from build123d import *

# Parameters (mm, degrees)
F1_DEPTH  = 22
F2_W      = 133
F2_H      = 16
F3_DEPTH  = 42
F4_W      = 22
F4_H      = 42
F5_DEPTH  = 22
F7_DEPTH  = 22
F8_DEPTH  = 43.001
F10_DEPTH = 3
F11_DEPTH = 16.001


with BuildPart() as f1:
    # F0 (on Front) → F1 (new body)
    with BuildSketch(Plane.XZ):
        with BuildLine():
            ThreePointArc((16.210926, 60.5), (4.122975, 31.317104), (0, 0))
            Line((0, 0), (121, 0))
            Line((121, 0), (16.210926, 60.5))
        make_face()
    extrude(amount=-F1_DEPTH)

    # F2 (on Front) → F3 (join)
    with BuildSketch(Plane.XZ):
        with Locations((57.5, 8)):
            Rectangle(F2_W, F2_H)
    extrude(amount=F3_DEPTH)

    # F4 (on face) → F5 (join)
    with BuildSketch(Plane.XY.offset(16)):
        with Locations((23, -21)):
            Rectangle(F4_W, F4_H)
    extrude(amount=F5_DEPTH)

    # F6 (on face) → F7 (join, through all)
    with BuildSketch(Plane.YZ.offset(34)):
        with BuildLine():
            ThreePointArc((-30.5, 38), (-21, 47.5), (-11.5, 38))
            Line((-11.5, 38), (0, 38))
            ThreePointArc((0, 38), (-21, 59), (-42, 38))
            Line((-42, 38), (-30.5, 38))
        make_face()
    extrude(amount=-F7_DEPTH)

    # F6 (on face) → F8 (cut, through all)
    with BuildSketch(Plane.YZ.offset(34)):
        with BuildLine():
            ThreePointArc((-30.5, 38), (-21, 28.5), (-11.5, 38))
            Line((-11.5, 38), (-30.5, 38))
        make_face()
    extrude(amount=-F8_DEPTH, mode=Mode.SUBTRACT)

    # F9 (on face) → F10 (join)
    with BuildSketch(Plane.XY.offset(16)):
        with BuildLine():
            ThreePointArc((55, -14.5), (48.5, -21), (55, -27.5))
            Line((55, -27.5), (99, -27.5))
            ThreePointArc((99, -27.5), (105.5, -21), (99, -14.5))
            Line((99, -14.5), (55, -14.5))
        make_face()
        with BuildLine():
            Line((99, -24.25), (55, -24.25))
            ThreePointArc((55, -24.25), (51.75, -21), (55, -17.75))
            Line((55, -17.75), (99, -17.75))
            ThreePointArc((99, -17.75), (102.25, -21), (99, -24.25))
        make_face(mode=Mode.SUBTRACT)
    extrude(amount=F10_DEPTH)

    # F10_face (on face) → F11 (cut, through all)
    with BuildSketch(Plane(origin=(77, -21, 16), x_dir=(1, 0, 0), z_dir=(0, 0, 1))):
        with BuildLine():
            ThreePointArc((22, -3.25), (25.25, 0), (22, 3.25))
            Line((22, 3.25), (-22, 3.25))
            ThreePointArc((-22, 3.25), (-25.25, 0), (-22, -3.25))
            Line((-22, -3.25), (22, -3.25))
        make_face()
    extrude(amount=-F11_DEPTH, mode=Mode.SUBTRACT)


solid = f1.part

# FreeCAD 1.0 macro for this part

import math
import FreeCAD as App
import Part
import Sketcher

V = App.Vector
Q = App.Units.Quantity


def add_polygon(sketch, points):
    """Adds a closed chain of lines whose ends are joined by coincident constraints."""
    first, n = sketch.GeometryCount, len(points)
    for a, b in zip(points, points[1:] + points[:1]):
        sketch.addGeometry(Part.LineSegment(App.Vector(*a, 0), App.Vector(*b, 0)), False)
    for i in range(n):
        sketch.addConstraint(Sketcher.Constraint("Coincident", first + i, 2, first + (i + 1) % n, 1))

doc = App.newDocument("Part")
body = doc.addObject("PartDesign::Body", "Body")

sketch1 = body.newObject("Sketcher::SketchObject", "Sketch")
sketch1.AttachmentSupport = (doc.getObject("XZ_Plane"), [""])
sketch1.MapMode = "FlatFace"
sketch1.addGeometry([
    Part.ArcOfCircle(Part.Circle(V(121.000005, -0.000001, 0), V(0, 0, 1), 121.000005), math.radians(150.000001), math.radians(180)),
    Part.LineSegment(V(0, 0, 0), V(121, 0, 0)),
    Part.LineSegment(V(121, 0, 0), V(16.210926, 60.5, 0)),
], False)
sketch1.addConstraint([
    Sketcher.Constraint("Coincident", 0, 2, 1, 1),
    Sketcher.Constraint("Coincident", 1, 2, 2, 1),
    Sketcher.Constraint("Coincident", 2, 2, 0, 1),
    Sketcher.Constraint("Horizontal", 1),
    Sketcher.Constraint("Coincident", 0, 2, -1, 1),
    Sketcher.Constraint("Coincident", 1, 2, 0, 3),
    Sketcher.Constraint("DistanceX", 1, 1, 1, 2, 121.0),
    Sketcher.Constraint("Angle", 2, Q("150 deg")),
])
pad1 = body.newObject("PartDesign::Pad", "Pad")
pad1.Profile = sketch1
pad1.Length = 22
pad1.Reversed = True

sketch2 = body.newObject("Sketcher::SketchObject", "Sketch001")
sketch2.AttachmentSupport = (doc.getObject("XZ_Plane"), [""])
sketch2.MapMode = "FlatFace"
add_polygon(sketch2, [(-9, 16), (-9, 0), (124, 0), (124, 16)])
sketch2.addConstraint([
    Sketcher.Constraint("Vertical", 0),
    Sketcher.Constraint("Horizontal", 1),
    Sketcher.Constraint("Vertical", 2),
    Sketcher.Constraint("Horizontal", 3),
    Sketcher.Constraint("PointOnObject", 0, 2, -1),
    Sketcher.Constraint("DistanceX", 1, 1, 1, 2, 133.0),
    Sketcher.Constraint("DistanceY", 0, 2, 0, 1, 16.0),
    Sketcher.Constraint("DistanceX", 0, 2, -1, 1, 9.0),
])
pad2 = body.newObject("PartDesign::Pad", "Pad001")
pad2.Profile = sketch2
pad2.Length = 42

sketch3 = body.newObject("Sketcher::SketchObject", "Sketch002")
sketch3.AttachmentSupport = (doc.getObject("XY_Plane"), [""])
sketch3.MapMode = "FlatFace"
sketch3.AttachmentOffset = App.Placement(V(0, 0, 16), App.Rotation())
add_polygon(sketch3, [(12, 0), (12, -42), (34, -42), (34, 0)])
sketch3.addConstraint([
    Sketcher.Constraint("Vertical", 0),
    Sketcher.Constraint("Horizontal", 1),
    Sketcher.Constraint("Vertical", 2),
    Sketcher.Constraint("Horizontal", 3),
    Sketcher.Constraint("PointOnObject", 2, 2, -1),
    Sketcher.Constraint("DistanceX", 1, 1, 1, 2, 22.0),
    Sketcher.Constraint("DistanceY", 0, 2, 0, 1, 42.0),
    Sketcher.Constraint("DistanceX", -1, 1, 0, 2, 12.0),
])
pad3 = body.newObject("PartDesign::Pad", "Pad002")
pad3.Profile = sketch3
pad3.Length = 22

sketch4 = body.newObject("Sketcher::SketchObject", "Sketch003")
sketch4.AttachmentSupport = (doc.getObject("YZ_Plane"), [""])
sketch4.MapMode = "FlatFace"
sketch4.AttachmentOffset = App.Placement(V(0, 0, 34), App.Rotation())
sketch4.addGeometry([
    Part.ArcOfCircle(Part.Circle(V(-21, 38, 0), V(0, 0, 1), 9.5), math.radians(0), math.radians(180)),
    Part.LineSegment(V(-11.5, 38, 0), V(0, 38, 0)),
    Part.ArcOfCircle(Part.Circle(V(-21, 38, 0), V(0, 0, 1), 21), math.radians(0), math.radians(180)),
    Part.LineSegment(V(-42, 38, 0), V(-30.5, 38, 0)),
], False)
sketch4.addConstraint([
    Sketcher.Constraint("Coincident", 0, 1, 1, 1),
    Sketcher.Constraint("Coincident", 1, 2, 2, 1),
    Sketcher.Constraint("Coincident", 2, 2, 3, 1),
    Sketcher.Constraint("Coincident", 3, 2, 0, 2),
    Sketcher.Constraint("Horizontal", 1),
    Sketcher.Constraint("Horizontal", 3),
    Sketcher.Constraint("Coincident", 2, 3, 0, 3),
    Sketcher.Constraint("PointOnObject", 1, 2, -2),
    Sketcher.Constraint("Horizontal", 2, 3, 0, 1),
    Sketcher.Constraint("Horizontal", 1, 2, 2, 2),
    Sketcher.Constraint("Radius", 2, 21.0),
    Sketcher.Constraint("Radius", 0, 9.5),
    Sketcher.Constraint("DistanceY", -1, 1, 0, 3, 38.0),
])
pad4 = body.newObject("PartDesign::Pad", "Pad003")
pad4.Profile = sketch4
pad4.Length = 22
pad4.Reversed = True

sketch5 = body.newObject("Sketcher::SketchObject", "Sketch004")
sketch5.AttachmentSupport = (doc.getObject("YZ_Plane"), [""])
sketch5.MapMode = "FlatFace"
sketch5.AttachmentOffset = App.Placement(V(0, 0, 34), App.Rotation())
sketch5.addGeometry([
    Part.ArcOfCircle(Part.Circle(V(-21, 38, 0), V(0, 0, 1), 9.5), math.radians(180), math.radians(360)),
    Part.LineSegment(V(-11.5, 38, 0), V(-30.5, 38, 0)),
], False)
sketch5.addConstraint([
    Sketcher.Constraint("Coincident", 0, 1, 1, 2),
    Sketcher.Constraint("Coincident", 1, 1, 0, 2),
    Sketcher.Constraint("Horizontal", 1),
    Sketcher.Constraint("Radius", 0, 9.5),
    Sketcher.Constraint("DistanceX", 0, 3, -1, 1, 21.0),
    Sketcher.Constraint("DistanceY", -1, 1, 0, 3, 38.0),
    Sketcher.Constraint("DistanceY", -1, 1, 0, 1, 38.0),
])
pocket1 = body.newObject("PartDesign::Pocket", "Pocket")
pocket1.Profile = sketch5
pocket1.Type = "ThroughAll"

sketch6 = body.newObject("Sketcher::SketchObject", "Sketch005")
sketch6.AttachmentSupport = (doc.getObject("XY_Plane"), [""])
sketch6.MapMode = "FlatFace"
sketch6.AttachmentOffset = App.Placement(V(0, 0, 16), App.Rotation())
sketch6.addGeometry([
    Part.ArcOfCircle(Part.Circle(V(55, -21, 0), V(0, 0, 1), 6.5), math.radians(90), math.radians(270)),
    Part.LineSegment(V(55, -27.5, 0), V(99, -27.5, 0)),
    Part.ArcOfCircle(Part.Circle(V(99, -21, 0), V(0, 0, 1), 6.5), math.radians(-90), math.radians(90)),
    Part.LineSegment(V(99, -14.5, 0), V(55, -14.5, 0)),
    Part.ArcOfCircle(Part.Circle(V(99, -21, 0), V(0, 0, 1), 3.25), math.radians(-90), math.radians(90)),
    Part.LineSegment(V(99, -24.25, 0), V(55, -24.25, 0)),
    Part.ArcOfCircle(Part.Circle(V(55, -21, 0), V(0, 0, 1), 3.25), math.radians(90), math.radians(270)),
    Part.LineSegment(V(55, -17.75, 0), V(99, -17.75, 0)),
], False)
sketch6.addConstraint([
    Sketcher.Constraint("Tangent", 0, 2, 1, 1),
    Sketcher.Constraint("Tangent", 1, 2, 2, 1),
    Sketcher.Constraint("Tangent", 2, 2, 3, 1),
    Sketcher.Constraint("Tangent", 3, 2, 0, 1),
    Sketcher.Constraint("Tangent", 4, 1, 5, 1),
    Sketcher.Constraint("Tangent", 5, 2, 6, 2),
    Sketcher.Constraint("Tangent", 6, 1, 7, 1),
    Sketcher.Constraint("Tangent", 7, 2, 4, 2),
    Sketcher.Constraint("Horizontal", 1),
    Sketcher.Constraint("Horizontal", 3),
    Sketcher.Constraint("Horizontal", 5),
    Sketcher.Constraint("Horizontal", 7),
    Sketcher.Constraint("Coincident", 4, 3, 2, 3),
    Sketcher.Constraint("Vertical", 6, 3, 0, 2),
    Sketcher.Constraint("Radius", 0, 6.5),
    Sketcher.Constraint("DistanceX", 1, 1, 1, 2, 44.0),
    Sketcher.Constraint("Radius", 4, 3.25),
    Sketcher.Constraint("DistanceX", -1, 1, 0, 3, 55.0),
    Sketcher.Constraint("DistanceY", 0, 3, -1, 1, 21.0),
])
pad5 = body.newObject("PartDesign::Pad", "Pad004")
pad5.Profile = sketch6
pad5.Length = 3

sketch7 = body.newObject("Sketcher::SketchObject", "Sketch006")
sketch7.AttachmentSupport = (doc.getObject("XY_Plane"), [""])
sketch7.MapMode = "FlatFace"
sketch7.AttachmentOffset = App.Placement(V(0, 0, 16), App.Rotation())
sketch7.addGeometry([
    Part.ArcOfCircle(Part.Circle(V(99, -21, 0), V(0, 0, 1), 3.25), math.radians(-90), math.radians(90)),
    Part.LineSegment(V(99, -17.75, 0), V(55, -17.75, 0)),
    Part.ArcOfCircle(Part.Circle(V(55, -21, 0), V(0, 0, 1), 3.25), math.radians(90), math.radians(270)),
    Part.LineSegment(V(55, -24.25, 0), V(99, -24.25, 0)),
], False)
sketch7.addConstraint([
    Sketcher.Constraint("Tangent", 0, 2, 1, 1),
    Sketcher.Constraint("Tangent", 1, 2, 2, 1),
    Sketcher.Constraint("Tangent", 2, 2, 3, 1),
    Sketcher.Constraint("Tangent", 3, 2, 0, 1),
    Sketcher.Constraint("Horizontal", 1),
    Sketcher.Constraint("Horizontal", 3),
    Sketcher.Constraint("DistanceX", 1, 2, 1, 1, 44.0),
    Sketcher.Constraint("Radius", 0, 3.25),
    Sketcher.Constraint("DistanceX", -1, 1, 0, 3, 99.0),
    Sketcher.Constraint("DistanceY", 0, 3, -1, 1, 21.0),
])
pocket2 = body.newObject("PartDesign::Pocket", "Pocket001")
pocket2.Profile = sketch7
pocket2.Type = "ThroughAll"

doc.recompute()
